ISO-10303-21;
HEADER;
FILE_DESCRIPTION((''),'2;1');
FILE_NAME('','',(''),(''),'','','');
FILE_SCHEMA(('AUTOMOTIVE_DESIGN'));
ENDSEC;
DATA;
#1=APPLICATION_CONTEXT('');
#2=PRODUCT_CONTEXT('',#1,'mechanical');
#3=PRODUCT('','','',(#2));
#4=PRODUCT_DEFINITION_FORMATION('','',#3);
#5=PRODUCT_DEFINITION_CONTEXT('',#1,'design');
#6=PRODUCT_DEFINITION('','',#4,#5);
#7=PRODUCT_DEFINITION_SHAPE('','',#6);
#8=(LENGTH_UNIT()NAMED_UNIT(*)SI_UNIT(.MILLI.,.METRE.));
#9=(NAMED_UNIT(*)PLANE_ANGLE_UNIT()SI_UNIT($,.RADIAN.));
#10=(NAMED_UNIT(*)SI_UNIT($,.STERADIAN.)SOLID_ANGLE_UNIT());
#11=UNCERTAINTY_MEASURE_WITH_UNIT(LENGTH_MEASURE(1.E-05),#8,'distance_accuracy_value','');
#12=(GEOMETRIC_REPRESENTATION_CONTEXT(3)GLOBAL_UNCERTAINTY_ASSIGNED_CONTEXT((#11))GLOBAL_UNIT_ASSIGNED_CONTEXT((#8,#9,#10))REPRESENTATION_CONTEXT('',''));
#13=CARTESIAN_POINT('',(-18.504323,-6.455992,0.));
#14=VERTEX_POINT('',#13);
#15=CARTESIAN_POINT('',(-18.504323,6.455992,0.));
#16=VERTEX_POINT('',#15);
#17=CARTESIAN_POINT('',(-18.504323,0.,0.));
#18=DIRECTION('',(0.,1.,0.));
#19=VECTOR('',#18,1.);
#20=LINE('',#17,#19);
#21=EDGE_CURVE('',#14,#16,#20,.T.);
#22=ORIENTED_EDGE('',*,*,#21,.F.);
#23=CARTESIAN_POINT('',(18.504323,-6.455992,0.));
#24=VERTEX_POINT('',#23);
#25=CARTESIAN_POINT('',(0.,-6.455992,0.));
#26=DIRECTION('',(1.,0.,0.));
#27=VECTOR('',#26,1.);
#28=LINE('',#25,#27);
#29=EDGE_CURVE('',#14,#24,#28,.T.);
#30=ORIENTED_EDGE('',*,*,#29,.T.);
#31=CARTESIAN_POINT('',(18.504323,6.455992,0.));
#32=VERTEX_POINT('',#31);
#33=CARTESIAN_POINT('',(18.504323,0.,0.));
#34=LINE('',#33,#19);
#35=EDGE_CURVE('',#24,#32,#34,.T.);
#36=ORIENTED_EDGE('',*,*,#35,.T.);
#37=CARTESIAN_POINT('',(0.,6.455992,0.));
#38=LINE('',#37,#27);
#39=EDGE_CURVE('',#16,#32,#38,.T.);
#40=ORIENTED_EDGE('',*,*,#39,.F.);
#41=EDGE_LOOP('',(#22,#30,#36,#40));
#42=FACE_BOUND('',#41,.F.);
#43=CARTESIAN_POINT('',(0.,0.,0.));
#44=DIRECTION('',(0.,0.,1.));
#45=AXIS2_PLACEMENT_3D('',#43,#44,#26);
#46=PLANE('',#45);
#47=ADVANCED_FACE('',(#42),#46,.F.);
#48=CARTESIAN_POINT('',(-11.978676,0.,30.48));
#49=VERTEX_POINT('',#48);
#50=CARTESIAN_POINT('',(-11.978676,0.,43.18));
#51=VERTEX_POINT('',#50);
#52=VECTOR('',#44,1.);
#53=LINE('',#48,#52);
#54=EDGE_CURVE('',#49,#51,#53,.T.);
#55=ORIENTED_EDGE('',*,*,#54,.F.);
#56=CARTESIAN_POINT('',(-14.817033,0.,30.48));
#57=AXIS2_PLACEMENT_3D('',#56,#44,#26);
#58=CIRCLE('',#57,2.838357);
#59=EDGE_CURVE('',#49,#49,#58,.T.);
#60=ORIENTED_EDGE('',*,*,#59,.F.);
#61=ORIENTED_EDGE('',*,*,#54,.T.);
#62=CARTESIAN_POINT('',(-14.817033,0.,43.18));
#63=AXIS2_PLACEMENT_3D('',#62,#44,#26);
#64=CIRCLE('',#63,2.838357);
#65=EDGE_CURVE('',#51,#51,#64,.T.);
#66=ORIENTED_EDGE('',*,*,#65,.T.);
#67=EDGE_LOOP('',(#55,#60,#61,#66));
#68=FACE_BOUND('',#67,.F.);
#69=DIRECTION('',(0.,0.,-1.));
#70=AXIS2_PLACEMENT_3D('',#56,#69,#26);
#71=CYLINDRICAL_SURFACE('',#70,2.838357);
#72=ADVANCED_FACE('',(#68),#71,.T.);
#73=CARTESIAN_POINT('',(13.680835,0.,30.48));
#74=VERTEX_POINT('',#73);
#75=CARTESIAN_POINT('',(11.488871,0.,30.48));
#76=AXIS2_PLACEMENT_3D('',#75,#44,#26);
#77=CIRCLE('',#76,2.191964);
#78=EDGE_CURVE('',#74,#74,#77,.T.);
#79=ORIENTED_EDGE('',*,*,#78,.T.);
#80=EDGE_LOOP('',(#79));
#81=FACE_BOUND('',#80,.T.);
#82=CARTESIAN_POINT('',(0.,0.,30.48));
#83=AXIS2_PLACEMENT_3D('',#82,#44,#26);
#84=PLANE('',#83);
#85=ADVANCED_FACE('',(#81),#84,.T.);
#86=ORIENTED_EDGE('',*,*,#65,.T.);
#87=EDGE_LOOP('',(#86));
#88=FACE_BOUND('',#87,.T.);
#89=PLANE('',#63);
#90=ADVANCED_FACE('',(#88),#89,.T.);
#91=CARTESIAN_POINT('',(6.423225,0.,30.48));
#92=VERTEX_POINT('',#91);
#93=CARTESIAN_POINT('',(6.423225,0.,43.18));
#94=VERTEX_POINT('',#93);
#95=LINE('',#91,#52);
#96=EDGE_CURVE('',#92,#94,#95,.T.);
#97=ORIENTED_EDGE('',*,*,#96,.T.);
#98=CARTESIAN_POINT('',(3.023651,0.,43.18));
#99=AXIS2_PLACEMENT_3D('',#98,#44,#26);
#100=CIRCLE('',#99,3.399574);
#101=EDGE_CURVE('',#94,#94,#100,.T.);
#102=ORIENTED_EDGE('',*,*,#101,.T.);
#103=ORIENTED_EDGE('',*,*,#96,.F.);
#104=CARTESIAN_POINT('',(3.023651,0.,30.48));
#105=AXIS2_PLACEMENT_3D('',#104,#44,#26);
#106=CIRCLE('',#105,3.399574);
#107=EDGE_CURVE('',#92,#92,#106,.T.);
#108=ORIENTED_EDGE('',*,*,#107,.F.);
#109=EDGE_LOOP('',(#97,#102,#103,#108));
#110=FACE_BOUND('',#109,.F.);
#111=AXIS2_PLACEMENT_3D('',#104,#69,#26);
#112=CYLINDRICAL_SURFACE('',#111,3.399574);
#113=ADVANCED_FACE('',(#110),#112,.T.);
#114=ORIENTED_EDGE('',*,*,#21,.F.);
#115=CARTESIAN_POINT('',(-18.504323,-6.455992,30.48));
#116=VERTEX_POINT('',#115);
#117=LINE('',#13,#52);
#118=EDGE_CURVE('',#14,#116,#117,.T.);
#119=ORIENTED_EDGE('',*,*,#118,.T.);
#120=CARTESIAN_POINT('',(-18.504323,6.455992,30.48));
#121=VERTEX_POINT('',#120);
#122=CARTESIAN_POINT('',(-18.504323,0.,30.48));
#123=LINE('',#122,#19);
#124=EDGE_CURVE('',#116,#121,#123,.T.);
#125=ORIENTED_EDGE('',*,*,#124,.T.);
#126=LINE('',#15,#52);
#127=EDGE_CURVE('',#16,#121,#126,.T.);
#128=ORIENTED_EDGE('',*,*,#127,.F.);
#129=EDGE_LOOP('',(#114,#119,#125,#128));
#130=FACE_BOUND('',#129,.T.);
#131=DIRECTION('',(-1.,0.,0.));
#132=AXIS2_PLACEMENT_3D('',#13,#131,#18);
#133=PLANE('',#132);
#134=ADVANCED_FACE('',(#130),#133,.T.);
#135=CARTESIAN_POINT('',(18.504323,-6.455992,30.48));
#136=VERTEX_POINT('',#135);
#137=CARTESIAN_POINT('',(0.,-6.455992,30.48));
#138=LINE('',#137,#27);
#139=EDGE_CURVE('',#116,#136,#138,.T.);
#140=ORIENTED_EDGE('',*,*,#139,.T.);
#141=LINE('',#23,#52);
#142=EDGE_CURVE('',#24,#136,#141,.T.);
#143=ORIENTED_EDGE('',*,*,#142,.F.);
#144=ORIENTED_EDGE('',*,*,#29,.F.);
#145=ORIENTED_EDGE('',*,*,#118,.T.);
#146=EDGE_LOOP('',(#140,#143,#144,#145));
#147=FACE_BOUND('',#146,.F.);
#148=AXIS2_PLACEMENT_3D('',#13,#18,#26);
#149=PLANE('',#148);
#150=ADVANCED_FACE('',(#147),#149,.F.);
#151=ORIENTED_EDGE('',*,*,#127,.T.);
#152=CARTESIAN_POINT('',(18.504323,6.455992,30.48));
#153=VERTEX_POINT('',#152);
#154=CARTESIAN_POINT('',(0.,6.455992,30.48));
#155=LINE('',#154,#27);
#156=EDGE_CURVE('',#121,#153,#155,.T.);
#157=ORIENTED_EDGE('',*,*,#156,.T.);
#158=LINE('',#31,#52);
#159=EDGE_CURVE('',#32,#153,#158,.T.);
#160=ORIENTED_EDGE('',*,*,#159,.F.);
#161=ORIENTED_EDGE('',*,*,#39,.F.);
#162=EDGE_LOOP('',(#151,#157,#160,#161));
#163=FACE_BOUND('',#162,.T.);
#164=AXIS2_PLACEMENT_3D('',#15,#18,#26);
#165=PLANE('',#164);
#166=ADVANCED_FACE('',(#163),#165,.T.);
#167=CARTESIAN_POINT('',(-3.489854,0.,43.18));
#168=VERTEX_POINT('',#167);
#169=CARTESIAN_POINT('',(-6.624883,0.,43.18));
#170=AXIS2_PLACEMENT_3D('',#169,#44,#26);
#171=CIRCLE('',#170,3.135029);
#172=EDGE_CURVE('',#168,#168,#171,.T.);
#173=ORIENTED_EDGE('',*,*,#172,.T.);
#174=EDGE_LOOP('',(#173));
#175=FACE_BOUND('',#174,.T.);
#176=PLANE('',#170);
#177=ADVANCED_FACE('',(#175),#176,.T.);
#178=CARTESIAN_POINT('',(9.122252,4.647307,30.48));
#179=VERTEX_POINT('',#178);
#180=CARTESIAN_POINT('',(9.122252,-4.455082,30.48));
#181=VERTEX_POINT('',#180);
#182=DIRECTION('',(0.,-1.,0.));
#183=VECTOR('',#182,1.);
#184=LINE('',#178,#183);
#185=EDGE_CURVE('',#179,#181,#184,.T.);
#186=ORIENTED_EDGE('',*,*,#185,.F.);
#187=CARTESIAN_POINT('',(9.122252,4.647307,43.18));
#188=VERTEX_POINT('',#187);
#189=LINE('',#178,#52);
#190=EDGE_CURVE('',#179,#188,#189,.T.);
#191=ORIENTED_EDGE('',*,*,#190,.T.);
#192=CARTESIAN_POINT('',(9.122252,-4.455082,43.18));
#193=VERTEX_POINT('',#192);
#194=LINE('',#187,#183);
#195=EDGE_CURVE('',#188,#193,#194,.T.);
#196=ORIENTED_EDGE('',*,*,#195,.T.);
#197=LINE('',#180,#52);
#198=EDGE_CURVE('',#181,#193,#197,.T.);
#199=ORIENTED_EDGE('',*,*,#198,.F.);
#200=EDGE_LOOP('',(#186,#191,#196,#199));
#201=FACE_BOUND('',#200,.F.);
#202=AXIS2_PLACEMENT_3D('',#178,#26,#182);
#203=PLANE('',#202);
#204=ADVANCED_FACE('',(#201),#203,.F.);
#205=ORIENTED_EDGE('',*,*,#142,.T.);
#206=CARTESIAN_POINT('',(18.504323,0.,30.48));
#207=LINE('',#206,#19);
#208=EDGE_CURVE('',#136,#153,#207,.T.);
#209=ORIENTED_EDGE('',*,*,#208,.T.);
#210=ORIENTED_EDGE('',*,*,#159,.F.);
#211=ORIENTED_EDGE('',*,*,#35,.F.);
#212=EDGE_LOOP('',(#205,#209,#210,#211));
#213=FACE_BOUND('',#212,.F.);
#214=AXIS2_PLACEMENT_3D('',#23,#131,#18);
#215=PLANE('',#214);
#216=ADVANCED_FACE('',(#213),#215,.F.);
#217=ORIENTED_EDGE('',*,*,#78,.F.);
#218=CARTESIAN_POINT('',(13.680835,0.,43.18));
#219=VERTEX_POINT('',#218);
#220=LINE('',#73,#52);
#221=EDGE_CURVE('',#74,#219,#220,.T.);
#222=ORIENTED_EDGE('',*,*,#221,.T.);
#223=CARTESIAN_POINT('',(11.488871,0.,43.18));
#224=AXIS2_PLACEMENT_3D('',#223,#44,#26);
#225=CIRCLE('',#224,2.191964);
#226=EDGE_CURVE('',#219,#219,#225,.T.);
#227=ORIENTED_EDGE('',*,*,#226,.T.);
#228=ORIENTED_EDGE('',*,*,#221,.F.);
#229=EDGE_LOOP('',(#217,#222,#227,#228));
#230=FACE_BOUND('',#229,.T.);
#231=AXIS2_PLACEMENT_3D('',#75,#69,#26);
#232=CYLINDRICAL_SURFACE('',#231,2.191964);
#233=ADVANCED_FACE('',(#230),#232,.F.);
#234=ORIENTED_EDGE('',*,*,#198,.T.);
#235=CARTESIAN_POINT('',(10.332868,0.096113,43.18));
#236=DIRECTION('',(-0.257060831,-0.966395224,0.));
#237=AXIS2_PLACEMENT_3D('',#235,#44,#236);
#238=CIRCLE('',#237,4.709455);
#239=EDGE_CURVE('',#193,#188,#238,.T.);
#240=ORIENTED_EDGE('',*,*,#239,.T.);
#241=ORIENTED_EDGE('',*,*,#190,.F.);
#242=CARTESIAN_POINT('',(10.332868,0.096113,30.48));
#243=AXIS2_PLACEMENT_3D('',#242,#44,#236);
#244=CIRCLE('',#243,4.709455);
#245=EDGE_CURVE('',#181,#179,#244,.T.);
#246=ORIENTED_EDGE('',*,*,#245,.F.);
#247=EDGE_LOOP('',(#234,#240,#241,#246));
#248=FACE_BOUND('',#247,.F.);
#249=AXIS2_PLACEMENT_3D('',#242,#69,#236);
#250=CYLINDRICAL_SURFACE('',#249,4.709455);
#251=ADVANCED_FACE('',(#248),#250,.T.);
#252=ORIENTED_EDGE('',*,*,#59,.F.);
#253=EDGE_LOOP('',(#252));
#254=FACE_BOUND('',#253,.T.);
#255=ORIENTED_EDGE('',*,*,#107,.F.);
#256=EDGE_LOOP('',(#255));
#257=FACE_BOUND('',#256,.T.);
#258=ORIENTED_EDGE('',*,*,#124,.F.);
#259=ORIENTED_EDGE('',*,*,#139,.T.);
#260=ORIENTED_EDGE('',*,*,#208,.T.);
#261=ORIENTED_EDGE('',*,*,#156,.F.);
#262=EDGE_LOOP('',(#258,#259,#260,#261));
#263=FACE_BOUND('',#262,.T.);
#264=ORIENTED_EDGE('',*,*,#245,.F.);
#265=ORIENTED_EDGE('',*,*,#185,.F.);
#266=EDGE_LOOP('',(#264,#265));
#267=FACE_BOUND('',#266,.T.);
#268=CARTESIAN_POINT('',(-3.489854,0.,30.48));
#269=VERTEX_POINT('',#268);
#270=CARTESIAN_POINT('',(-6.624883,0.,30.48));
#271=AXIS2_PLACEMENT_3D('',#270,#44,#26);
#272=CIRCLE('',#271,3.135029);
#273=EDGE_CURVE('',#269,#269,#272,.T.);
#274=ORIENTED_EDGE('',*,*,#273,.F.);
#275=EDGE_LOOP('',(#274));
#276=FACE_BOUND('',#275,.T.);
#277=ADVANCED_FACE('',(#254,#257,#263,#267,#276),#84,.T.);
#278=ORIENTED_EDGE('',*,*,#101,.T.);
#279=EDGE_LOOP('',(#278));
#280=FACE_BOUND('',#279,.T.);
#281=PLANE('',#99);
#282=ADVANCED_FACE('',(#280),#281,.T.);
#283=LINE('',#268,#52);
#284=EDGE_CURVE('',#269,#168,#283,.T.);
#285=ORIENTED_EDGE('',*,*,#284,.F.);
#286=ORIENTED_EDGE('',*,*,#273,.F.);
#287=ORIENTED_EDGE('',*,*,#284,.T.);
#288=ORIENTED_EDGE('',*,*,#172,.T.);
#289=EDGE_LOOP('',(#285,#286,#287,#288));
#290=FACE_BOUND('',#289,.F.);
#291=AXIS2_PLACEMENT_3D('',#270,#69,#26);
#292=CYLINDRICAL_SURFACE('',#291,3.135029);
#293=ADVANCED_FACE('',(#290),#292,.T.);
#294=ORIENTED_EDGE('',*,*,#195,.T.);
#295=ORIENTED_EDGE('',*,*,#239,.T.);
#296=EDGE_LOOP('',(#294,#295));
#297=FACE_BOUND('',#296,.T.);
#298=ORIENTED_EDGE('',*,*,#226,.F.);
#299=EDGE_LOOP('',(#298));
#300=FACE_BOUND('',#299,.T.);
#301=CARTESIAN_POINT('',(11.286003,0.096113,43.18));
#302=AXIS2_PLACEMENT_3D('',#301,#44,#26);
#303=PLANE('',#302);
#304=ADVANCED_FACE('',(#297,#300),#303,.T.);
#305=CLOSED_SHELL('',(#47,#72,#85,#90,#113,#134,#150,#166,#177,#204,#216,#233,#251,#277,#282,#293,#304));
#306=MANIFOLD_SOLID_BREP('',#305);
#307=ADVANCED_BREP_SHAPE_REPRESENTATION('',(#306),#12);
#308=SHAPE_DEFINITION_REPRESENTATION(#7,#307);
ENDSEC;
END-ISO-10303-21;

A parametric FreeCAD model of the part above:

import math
import FreeCAD as App
import Part
import Sketcher
Q = App.Units.Quantity


def add_polygon(sketch, points):
    """Adds a closed chain of lines whose ends are joined by coincident constraints."""
    first, n = sketch.GeometryCount, len(points)
    for a, b in zip(points, points[1:] + points[:1]):
        sketch.addGeometry(Part.LineSegment(App.Vector(*a, 0), App.Vector(*b, 0)), False)
    for i in range(n):
        sketch.addConstraint(Sketcher.Constraint("Coincident", first + i, 2, first + (i + 1) % n, 1))

doc = App.newDocument("Part")
body = doc.addObject("PartDesign::Body", "Body")

# Sketch on XY plane
sketch1 = body.newObject("Sketcher::SketchObject", "Sketch")
sketch1.AttachmentSupport = (doc.getObject("XY_Plane"), [""])
sketch1.MapMode = "FlatFace"
add_polygon(sketch1, [(-19, 6), (-19, -6), (19, -6), (19, 6)])  # lines 0-3
sketch1.addConstraint([
    Sketcher.Constraint("Vertical", 0),
    Sketcher.Constraint("Horizontal", 1),
    Sketcher.Constraint("Vertical", 2),
    Sketcher.Constraint("Horizontal", 3),
    Sketcher.Constraint("Symmetric", 0, 2, 2, 2, -1, 1),
    Sketcher.Constraint("DistanceX", 1, 1, 1, 2, Q("37.008646 mm")),
    Sketcher.Constraint("DistanceY", 0, 2, 0, 1, Q("12.911984 mm")),
])
pad1 = body.newObject("PartDesign::Pad", "Pad")
pad1.Profile = sketch1
pad1.Length = Q("1.2 in")

# Sketch on XY plane
sketch2 = body.newObject("Sketcher::SketchObject", "Sketch001")
sketch2.AttachmentSupport = (doc.getObject("XY_Plane"), [""])
sketch2.MapMode = "FlatFace"
sketch2.AttachmentOffset = App.Placement(App.Vector(0, 0, 1.2 * 25.4), App.Rotation())
sketch2.addGeometry([
    Part.Circle(App.Vector(-14.8, 0, 0), App.Vector(0, 0, 1), 2.8),  # 0
    Part.Circle(App.Vector(-6.6, 0, 0), App.Vector(0, 0, 1), 3.1),  # 1
    Part.Circle(App.Vector(3, 0, 0), App.Vector(0, 0, 1), 3.4),  # 2
    Part.LineSegment(App.Vector(9.1, 4.6, 0), App.Vector(9.1, -4.5, 0)),  # 3
    Part.ArcOfCircle(Part.Circle(App.Vector(10.3, 0.1, 0), App.Vector(0, 0, 1), 4.7), math.radians(-105), math.radians(105)),  # 4
    Part.Circle(App.Vector(11.5, 0, 0), App.Vector(0, 0, 1), 2.2),  # 5
], False)
sketch2.addConstraint([
    Sketcher.Constraint("Coincident", 3, 1, 4, 2),
    Sketcher.Constraint("Coincident", 4, 1, 3, 2),
    Sketcher.Constraint("Vertical", 3),
    Sketcher.Constraint("PointOnObject", 0, 3, -1),
    Sketcher.Constraint("PointOnObject", 1, 3, -1),
    Sketcher.Constraint("PointOnObject", 2, 3, -1),
    Sketcher.Constraint("PointOnObject", 5, 3, -1),
    Sketcher.Constraint("Diameter", 0, Q("5.676714 mm")),
    Sketcher.Constraint("Diameter", 1, Q("6.270058 mm")),
    Sketcher.Constraint("Diameter", 2, Q("6.799148 mm")),
    Sketcher.Constraint("Diameter", 5, Q("4.383928 mm")),
    Sketcher.Constraint("Radius", 4, Q("4.709455 mm")),
    Sketcher.Constraint("DistanceY", 3, 2, 3, 1, Q("9.102389 mm")),
    Sketcher.Constraint("DistanceX", 0, 3, 4, 3, Q("25.149901 mm")),
    Sketcher.Constraint("DistanceX", 2, 3, 3, 1, Q("6.098601 mm")),
    Sketcher.Constraint("DistanceX", -1, 1, 2, 3, Q("3.023651 mm")),
    Sketcher.Constraint("DistanceX", -1, 1, 5, 3, Q("11.488871 mm")),
    Sketcher.Constraint("DistanceX", 0, 3, 1, 3, Q("8.19215 mm")),
    Sketcher.Constraint("DistanceY", -1, 1, 4, 3, Q("0.096113 mm")),
])
pad2 = body.newObject("PartDesign::Pad", "Pad001")
pad2.Profile = sketch2
pad2.Length = Q("0.5 in")

doc.recompute()
